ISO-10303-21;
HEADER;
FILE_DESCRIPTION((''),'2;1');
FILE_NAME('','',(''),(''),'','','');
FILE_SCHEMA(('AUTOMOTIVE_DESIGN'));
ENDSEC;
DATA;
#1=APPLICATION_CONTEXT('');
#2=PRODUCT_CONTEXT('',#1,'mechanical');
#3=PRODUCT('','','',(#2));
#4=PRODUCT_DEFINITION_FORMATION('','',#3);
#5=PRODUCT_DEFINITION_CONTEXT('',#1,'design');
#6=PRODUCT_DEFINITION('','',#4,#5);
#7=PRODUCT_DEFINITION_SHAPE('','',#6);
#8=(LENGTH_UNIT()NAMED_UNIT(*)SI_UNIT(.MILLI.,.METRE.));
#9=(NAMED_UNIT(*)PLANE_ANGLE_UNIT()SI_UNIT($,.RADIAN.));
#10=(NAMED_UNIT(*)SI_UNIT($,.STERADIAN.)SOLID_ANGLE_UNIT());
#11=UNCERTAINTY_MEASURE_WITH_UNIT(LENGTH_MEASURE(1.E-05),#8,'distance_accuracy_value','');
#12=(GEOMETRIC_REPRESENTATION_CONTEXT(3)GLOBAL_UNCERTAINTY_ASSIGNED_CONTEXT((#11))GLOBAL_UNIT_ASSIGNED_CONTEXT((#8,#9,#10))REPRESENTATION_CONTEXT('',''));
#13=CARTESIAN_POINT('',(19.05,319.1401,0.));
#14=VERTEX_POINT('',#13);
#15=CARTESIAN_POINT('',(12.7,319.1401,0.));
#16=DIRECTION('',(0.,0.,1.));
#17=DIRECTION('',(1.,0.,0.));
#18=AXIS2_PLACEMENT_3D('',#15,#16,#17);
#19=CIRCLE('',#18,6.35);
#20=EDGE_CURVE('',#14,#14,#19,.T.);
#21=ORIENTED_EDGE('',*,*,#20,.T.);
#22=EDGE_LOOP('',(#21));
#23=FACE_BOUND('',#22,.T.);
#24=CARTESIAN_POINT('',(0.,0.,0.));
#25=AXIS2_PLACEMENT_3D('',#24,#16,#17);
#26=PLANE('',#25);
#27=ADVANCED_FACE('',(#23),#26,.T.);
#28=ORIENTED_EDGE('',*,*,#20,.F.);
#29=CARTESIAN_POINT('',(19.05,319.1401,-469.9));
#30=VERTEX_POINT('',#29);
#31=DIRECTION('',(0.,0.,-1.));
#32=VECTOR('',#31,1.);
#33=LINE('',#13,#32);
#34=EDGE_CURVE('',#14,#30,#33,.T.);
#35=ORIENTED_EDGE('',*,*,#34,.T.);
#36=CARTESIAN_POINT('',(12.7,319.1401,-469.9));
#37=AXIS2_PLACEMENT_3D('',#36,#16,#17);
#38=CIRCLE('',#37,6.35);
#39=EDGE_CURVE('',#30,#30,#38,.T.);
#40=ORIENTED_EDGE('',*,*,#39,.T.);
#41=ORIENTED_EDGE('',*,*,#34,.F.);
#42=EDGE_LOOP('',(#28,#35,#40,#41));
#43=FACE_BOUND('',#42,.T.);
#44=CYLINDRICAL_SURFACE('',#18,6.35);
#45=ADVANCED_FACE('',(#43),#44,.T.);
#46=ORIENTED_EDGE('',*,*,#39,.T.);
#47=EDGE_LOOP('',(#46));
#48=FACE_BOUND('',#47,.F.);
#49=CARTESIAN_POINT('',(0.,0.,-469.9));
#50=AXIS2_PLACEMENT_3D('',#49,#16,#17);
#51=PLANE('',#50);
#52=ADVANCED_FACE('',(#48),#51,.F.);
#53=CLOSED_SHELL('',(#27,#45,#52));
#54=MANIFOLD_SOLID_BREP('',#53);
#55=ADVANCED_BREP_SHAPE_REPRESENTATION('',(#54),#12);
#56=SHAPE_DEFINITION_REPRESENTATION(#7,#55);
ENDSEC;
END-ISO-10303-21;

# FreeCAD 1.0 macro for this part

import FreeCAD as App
import Part
import Sketcher

V = App.Vector
Q = App.Units.Quantity

doc = App.newDocument("Part")
body = doc.addObject("PartDesign::Body", "Body")

# Sketch on XY plane
sketch1 = body.newObject("Sketcher::SketchObject", "Sketch")
sketch1.AttachmentSupport = (doc.getObject("XY_Plane"), [""])
sketch1.MapMode = "FlatFace"
sketch1.addGeometry(Part.Circle(V(12.7, 319.1401, 0), V(0, 0, 1), 6.35), False)
sketch1.addConstraint(Sketcher.Constraint("Diameter", 0, Q("0.5 in")))
sketch1.addConstraint(Sketcher.Constraint("DistanceX", -1, 1, 0, 3, Q("0.5 in")))
sketch1.addConstraint(Sketcher.Constraint("DistanceY", -1, 1, 0, 3, Q("319.14 mm")))
pad1 = body.newObject("PartDesign::Pad", "Pad")
pad1.Profile = sketch1
pad1.Length = Q("18.5 in")
pad1.Reversed = True

doc.recompute()
